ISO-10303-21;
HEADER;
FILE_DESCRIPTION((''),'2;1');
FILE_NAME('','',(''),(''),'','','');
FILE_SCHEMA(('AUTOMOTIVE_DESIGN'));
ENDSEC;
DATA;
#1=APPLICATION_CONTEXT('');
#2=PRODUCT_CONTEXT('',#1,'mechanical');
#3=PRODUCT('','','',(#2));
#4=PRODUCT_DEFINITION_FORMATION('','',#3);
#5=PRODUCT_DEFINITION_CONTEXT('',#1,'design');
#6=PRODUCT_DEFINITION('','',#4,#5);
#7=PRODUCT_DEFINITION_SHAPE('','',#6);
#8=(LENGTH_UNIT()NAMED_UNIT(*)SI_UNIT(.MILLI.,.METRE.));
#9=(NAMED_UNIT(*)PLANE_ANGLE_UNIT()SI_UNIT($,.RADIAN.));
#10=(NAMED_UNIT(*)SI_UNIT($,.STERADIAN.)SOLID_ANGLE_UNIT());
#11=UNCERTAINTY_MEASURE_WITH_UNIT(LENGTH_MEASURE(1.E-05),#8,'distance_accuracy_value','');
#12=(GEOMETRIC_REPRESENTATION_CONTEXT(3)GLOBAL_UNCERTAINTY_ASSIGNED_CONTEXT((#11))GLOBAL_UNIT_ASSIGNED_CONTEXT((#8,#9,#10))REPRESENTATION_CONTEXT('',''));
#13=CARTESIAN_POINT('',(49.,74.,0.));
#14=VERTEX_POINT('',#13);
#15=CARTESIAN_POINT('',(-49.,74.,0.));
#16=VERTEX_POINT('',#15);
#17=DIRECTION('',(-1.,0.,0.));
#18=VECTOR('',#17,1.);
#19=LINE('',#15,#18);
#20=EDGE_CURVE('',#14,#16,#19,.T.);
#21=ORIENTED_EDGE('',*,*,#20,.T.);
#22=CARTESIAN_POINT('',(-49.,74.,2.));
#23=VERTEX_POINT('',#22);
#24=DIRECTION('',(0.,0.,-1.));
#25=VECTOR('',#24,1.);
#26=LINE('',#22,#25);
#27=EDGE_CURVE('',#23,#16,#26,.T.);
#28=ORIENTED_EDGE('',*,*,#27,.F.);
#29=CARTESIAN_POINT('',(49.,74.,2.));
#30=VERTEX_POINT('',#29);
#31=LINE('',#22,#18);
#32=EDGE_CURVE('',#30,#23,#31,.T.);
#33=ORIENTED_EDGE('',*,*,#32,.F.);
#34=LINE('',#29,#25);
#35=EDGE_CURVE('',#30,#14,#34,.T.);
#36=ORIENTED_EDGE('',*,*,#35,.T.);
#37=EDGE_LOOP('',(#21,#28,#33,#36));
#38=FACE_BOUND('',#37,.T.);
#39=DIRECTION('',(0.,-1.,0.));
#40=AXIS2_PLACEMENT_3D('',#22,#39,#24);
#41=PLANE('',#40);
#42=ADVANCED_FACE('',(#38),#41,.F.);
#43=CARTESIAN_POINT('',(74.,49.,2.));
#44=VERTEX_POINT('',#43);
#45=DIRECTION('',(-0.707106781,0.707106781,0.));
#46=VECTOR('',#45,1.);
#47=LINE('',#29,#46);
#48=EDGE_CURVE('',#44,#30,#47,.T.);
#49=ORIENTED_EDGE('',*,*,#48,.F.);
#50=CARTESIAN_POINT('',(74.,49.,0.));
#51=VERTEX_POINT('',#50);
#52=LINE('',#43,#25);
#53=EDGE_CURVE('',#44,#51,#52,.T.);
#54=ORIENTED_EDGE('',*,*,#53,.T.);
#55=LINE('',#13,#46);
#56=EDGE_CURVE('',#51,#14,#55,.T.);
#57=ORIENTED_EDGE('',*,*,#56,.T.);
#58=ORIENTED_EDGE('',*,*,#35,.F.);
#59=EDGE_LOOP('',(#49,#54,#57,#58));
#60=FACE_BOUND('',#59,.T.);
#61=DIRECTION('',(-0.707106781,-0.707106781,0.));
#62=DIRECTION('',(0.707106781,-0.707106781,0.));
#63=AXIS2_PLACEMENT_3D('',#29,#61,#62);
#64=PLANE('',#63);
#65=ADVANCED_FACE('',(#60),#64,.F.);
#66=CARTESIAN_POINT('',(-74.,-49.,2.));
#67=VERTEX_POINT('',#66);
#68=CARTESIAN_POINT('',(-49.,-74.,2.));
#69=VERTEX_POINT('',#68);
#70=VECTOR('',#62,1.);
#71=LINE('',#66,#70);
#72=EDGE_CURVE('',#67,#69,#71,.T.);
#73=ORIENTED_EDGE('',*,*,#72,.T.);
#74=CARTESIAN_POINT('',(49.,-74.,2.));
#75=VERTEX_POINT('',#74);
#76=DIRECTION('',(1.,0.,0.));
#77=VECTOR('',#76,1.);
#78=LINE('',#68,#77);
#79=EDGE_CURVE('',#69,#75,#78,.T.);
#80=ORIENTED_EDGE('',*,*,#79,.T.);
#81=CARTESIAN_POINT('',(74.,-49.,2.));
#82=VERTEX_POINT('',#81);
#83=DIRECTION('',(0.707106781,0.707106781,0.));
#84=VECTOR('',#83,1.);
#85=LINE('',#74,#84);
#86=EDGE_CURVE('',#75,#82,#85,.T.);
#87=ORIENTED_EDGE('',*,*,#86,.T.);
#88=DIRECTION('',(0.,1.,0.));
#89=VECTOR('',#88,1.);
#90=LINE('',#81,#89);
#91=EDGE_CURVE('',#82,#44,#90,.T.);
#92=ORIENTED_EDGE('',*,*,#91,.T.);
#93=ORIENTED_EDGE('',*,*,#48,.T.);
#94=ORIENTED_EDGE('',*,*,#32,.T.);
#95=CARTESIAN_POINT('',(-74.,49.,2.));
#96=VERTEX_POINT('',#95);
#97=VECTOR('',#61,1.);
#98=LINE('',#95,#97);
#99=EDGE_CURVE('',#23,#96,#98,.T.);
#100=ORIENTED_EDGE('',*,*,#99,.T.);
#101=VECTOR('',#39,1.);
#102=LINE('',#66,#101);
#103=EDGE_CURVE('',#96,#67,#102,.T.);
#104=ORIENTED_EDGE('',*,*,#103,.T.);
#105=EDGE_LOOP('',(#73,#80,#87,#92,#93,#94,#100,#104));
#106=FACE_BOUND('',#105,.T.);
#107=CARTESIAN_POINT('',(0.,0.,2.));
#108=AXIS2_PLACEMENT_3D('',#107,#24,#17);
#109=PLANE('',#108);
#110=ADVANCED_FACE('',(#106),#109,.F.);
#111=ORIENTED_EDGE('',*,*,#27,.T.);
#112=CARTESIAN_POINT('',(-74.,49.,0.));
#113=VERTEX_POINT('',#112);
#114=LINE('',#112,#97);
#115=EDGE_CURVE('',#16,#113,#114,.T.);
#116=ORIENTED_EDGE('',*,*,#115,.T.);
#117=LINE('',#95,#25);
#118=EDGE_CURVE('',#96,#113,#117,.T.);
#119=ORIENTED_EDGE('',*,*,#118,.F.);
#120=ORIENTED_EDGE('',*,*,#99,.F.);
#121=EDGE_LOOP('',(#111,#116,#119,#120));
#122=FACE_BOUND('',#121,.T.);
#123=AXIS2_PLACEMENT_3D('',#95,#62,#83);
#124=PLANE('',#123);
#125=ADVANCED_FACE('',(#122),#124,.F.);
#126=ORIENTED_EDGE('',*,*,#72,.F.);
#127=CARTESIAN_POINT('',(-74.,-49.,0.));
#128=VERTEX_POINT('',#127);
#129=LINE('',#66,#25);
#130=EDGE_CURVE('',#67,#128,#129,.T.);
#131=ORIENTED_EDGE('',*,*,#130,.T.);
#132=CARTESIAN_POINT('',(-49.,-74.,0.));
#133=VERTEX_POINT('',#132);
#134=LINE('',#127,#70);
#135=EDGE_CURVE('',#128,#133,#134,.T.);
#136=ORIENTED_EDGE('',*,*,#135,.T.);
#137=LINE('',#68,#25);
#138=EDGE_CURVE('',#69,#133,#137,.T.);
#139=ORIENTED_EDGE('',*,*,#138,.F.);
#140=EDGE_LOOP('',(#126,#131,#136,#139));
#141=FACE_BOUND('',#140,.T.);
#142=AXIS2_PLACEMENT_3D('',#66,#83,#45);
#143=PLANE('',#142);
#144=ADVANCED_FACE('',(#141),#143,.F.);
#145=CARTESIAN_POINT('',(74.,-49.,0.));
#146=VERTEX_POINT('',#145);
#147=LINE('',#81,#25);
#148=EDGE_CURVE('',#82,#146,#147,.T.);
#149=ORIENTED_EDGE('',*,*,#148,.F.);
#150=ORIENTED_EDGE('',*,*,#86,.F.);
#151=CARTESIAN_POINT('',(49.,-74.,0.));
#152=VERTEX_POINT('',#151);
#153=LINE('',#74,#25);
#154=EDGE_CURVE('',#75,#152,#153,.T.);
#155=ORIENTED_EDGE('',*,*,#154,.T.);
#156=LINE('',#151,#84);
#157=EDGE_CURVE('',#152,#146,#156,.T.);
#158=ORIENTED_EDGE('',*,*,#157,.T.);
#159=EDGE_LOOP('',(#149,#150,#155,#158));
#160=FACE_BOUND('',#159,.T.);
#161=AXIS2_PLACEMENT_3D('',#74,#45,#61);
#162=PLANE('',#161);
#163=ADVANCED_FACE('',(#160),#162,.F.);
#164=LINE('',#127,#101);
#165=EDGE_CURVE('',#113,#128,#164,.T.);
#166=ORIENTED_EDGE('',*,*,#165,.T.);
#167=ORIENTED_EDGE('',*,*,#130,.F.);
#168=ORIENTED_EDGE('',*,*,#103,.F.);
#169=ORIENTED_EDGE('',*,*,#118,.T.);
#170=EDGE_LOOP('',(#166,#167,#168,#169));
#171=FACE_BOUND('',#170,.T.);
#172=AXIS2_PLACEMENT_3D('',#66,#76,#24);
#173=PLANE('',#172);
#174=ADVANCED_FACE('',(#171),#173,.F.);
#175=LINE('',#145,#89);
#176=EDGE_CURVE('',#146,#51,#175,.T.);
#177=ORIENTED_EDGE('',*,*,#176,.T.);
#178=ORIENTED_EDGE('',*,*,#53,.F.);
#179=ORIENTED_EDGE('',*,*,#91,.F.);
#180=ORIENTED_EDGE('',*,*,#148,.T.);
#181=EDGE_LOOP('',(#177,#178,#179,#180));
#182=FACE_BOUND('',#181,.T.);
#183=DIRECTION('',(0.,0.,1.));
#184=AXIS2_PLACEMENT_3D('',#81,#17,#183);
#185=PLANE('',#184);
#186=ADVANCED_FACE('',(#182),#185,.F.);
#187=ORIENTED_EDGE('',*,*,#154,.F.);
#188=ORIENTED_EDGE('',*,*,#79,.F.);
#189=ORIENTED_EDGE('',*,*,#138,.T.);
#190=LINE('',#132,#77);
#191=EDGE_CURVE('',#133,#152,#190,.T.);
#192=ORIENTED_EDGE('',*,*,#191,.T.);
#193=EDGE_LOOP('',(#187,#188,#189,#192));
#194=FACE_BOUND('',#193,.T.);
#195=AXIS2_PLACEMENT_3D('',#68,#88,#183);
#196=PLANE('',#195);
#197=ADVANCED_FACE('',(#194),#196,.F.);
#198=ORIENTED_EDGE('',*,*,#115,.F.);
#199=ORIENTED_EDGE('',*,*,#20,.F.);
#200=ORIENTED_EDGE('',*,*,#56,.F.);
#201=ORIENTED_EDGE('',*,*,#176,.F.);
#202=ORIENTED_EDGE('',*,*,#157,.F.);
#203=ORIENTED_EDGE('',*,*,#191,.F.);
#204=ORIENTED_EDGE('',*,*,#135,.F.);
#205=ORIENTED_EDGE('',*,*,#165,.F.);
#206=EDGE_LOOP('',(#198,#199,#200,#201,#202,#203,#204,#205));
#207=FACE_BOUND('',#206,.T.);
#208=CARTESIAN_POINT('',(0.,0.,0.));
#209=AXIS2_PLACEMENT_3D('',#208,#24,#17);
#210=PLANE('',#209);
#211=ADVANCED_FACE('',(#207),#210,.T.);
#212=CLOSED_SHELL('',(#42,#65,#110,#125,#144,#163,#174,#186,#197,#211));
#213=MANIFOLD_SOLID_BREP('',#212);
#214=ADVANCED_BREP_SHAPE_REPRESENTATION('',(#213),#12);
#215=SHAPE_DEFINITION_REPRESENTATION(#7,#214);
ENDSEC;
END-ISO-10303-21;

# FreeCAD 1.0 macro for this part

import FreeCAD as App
import Part
import Sketcher
Q = App.Units.Quantity


def add_polygon(sketch, points):
    """Adds a closed chain of lines whose ends are joined by coincident constraints."""
    first, n = sketch.GeometryCount, len(points)
    for a, b in zip(points, points[1:] + points[:1]):
        sketch.addGeometry(Part.LineSegment(App.Vector(*a, 0), App.Vector(*b, 0)), False)
    for i in range(n):
        sketch.addConstraint(Sketcher.Constraint("Coincident", first + i, 2, first + (i + 1) % n, 1))

doc = App.newDocument("Part")
body = doc.addObject("PartDesign::Body", "Body")

# Sketch on XY plane
sketch1 = body.newObject("Sketcher::SketchObject", "Sketch")
sketch1.AttachmentSupport = (doc.getObject("XY_Plane"), [""])
sketch1.MapMode = "FlatFace"
add_polygon(sketch1, [(-49, 74), (-74, 49), (-74, -49), (-49, -74), (49, -74), (74, -49), (74, 49), (49, 74)])  # lines 0-7
sketch1.addConstraint(Sketcher.Constraint("Vertical", 1))
sketch1.addConstraint(Sketcher.Constraint("Horizontal", 3))
sketch1.addConstraint(Sketcher.Constraint("Vertical", 5))
sketch1.addConstraint(Sketcher.Constraint("Horizontal", 7))
sketch1.addConstraint(Sketcher.Constraint("Symmetric", 0, 2, 4, 2, -1, 1))
sketch1.addConstraint(Sketcher.Constraint("Symmetric", 2, 2, 6, 2, -1, 1))
sketch1.addConstraint(Sketcher.Constraint("Perpendicular", 0, 2))
sketch1.addConstraint(Sketcher.Constraint("Perpendicular", 2, 4))
sketch1.addConstraint(Sketcher.Constraint("Perpendicular", 4, 6))
sketch1.addConstraint(Sketcher.Constraint("Horizontal", 1, 2, 4, 2))
sketch1.addConstraint(Sketcher.Constraint("Vertical", 3, 2, 6, 2))
sketch1.addConstraint(Sketcher.Constraint("Equal", 7, 1))
sketch1.addConstraint(Sketcher.Constraint("DistanceX", 3, 1, 3, 2, Q("98 mm")))
sketch1.addConstraint(Sketcher.Constraint("DistanceX", 0, 2, -1, 1, Q("74 mm")))
pad1 = body.newObject("PartDesign::Pad", "Pad")
pad1.Profile = sketch1
pad1.Length = 2

doc.recompute()
